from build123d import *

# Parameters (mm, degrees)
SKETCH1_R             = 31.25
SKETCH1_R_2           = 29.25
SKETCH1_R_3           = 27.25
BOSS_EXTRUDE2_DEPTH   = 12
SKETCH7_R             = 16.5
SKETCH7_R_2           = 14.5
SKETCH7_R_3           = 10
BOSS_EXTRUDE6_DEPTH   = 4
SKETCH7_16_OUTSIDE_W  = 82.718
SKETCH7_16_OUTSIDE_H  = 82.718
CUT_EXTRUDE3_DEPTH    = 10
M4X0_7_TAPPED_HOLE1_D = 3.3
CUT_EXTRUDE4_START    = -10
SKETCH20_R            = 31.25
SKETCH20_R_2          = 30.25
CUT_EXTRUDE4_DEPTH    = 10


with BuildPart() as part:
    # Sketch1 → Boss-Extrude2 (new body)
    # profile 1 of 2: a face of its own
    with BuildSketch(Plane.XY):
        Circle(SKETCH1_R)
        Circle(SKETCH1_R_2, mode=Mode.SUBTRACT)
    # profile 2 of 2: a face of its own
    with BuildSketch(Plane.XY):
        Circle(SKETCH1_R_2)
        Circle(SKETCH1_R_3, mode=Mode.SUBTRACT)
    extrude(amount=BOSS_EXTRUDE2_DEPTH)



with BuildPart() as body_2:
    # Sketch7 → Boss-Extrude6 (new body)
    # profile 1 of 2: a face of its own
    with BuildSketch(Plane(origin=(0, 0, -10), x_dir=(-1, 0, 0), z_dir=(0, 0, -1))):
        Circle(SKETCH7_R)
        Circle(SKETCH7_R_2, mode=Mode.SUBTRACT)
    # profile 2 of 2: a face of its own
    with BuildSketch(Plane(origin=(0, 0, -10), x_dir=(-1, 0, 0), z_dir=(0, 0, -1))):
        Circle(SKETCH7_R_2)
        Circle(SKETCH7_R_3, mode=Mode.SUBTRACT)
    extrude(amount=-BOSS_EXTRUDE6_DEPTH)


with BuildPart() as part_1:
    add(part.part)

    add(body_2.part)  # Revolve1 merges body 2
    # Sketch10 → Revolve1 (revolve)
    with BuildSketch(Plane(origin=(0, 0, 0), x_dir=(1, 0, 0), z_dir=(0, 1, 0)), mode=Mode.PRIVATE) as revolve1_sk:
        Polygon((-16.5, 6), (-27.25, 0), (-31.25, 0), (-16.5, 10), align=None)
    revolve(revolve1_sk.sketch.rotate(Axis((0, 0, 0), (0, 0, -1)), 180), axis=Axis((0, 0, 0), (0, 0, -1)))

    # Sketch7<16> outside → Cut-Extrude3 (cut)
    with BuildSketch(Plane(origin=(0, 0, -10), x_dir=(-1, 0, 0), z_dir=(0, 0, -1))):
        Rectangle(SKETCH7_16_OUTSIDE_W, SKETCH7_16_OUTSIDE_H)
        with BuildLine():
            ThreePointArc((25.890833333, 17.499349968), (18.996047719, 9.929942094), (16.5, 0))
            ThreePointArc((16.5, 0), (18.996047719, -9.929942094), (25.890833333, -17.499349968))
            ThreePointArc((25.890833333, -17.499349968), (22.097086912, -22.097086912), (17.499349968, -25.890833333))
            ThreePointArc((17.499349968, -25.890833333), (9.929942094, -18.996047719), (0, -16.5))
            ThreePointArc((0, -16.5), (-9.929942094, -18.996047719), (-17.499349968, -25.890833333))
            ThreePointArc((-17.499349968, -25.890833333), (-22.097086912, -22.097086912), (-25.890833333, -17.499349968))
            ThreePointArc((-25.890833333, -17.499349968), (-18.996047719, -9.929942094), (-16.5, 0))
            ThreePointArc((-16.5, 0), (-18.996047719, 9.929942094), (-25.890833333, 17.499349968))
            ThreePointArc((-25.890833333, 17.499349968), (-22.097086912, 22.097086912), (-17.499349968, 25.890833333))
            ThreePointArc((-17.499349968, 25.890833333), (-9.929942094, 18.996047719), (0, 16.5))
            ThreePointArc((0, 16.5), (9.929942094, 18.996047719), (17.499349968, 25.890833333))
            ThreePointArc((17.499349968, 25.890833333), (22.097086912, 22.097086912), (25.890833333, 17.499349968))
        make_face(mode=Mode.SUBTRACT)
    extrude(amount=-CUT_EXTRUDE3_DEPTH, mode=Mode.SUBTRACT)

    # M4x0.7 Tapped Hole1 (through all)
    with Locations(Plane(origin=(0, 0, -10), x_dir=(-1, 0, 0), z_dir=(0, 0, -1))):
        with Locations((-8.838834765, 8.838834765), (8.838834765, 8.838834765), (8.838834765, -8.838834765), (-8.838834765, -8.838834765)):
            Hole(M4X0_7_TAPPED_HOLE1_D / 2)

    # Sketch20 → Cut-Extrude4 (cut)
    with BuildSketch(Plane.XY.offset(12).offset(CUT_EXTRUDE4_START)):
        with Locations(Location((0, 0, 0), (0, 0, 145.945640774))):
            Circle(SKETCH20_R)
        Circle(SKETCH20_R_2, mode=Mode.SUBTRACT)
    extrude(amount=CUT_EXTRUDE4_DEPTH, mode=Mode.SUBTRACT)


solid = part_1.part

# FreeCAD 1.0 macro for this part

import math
import FreeCAD as App
import Part
import Sketcher

V = App.Vector
Q = App.Units.Quantity


def add_polygon(sketch, points):
    """Adds a closed chain of lines whose ends are joined by coincident constraints."""
    first, n = sketch.GeometryCount, len(points)
    for a, b in zip(points, points[1:] + points[:1]):
        sketch.addGeometry(Part.LineSegment(App.Vector(*a, 0), App.Vector(*b, 0)), False)
    for i in range(n):
        sketch.addConstraint(Sketcher.Constraint("Coincident", first + i, 2, first + (i + 1) % n, 1))

doc = App.newDocument("Part")
params = doc.addObject("Spreadsheet::Sheet", "Params")
for row, (alias, value) in enumerate([
    ("sketch1_diameter", "62.5 mm"),
    ("sketch1_diameter2", "54.5 mm"),
    ("pad1_length", "12 mm"),
    ("sketch2_diameter", "33 mm"),
    ("sketch2_diameter2", "20 mm"),
    ("pad2_length", "4 mm"),
    ("sketch3_width", "4 mm"),
    ("revolution_angle", "360 deg"),
    ("sketch4_radius", "21 mm"),
    ("sketch4_radius2", "31.25 mm"),
    ("pocket1_length", "10 mm"),
    ("sketch5_diameter", "3.3 mm"),
    ("hole_diameter", "3.3 mm"),
    ("sketch6_diameter", "62.5 mm"),
    ("sketch6_diameter2", "60.5 mm"),
    ("pocket2_length", "10 mm"),
], start=1):
    params.set(f"A{row}", alias)
    params.set(f"B{row}", "=" + value)
    params.setAlias(f"B{row}", alias)

body = doc.addObject("PartDesign::Body", "Body")

sketch1 = body.newObject("Sketcher::SketchObject", "Sketch")
sketch1.AttachmentSupport = (doc.getObject("XY_Plane"), [""])
sketch1.MapMode = "FlatFace"
sketch1.addGeometry([
    Part.Circle(V(0, 0, 0), V(0, 0, 1), 31),
    Part.Circle(V(0, 0, 0), V(0, 0, 1), 27),
], False)
sketch1.addConstraint([
    Sketcher.Constraint("Coincident", 0, 3, -1, 1),
    Sketcher.Constraint("Coincident", 1, 3, -1, 1),
    Sketcher.Constraint("Diameter", 0, Q("62.5 mm")),
    Sketcher.Constraint("Diameter", 1, Q("54.5 mm")),
])
sketch1.setExpression("Constraints[2]", "Params.sketch1_diameter")
sketch1.setExpression("Constraints[3]", "Params.sketch1_diameter2")
pad1 = body.newObject("PartDesign::Pad", "Pad")
pad1.Profile = sketch1
pad1.setExpression("Length", "Params.pad1_length")
body2 = doc.addObject("PartDesign::Body", "Body001")

sketch2 = body2.newObject("Sketcher::SketchObject", "Sketch001")
sketch2.AttachmentSupport = (doc.getObject("XY_Plane001"), [""])
sketch2.MapMode = "FlatFace"
sketch2.AttachmentOffset = App.Placement(V(0, 0, -10), App.Rotation())
sketch2.addGeometry([
    Part.Circle(V(0, 0, 0), V(0, 0, 1), 16),
    Part.Circle(V(0, 0, 0), V(0, 0, 1), 10),
], False)
sketch2.addConstraint([
    Sketcher.Constraint("Coincident", 0, 3, -1, 1),
    Sketcher.Constraint("Coincident", 1, 3, -1, 1),
    Sketcher.Constraint("Diameter", 0, Q("33 mm")),
    Sketcher.Constraint("Diameter", 1, Q("20 mm")),
])
sketch2.setExpression("Constraints[2]", "Params.sketch2_diameter")
sketch2.setExpression("Constraints[3]", "Params.sketch2_diameter2")
pad2 = body2.newObject("PartDesign::Pad", "Pad001")
pad2.Profile = sketch2
pad2.setExpression("Length", "Params.pad2_length")
body.AllowCompound = True
doc.recompute()

boolean = body.newObject("PartDesign::Boolean", "Boolean")
boolean.Type = "Fuse"
boolean.addObjects([body2])

sketch3 = body.newObject("Sketcher::SketchObject", "Sketch002")
sketch3.AttachmentSupport = (doc.getObject("XZ_Plane"), [""])
sketch3.MapMode = "FlatFace"
add_polygon(sketch3, [(-27.2, 0), (-16.5, -6), (-16.5, -10), (-31.2, 0)])
sketch3.addConstraint([
    Sketcher.Constraint("Vertical", 1),
    Sketcher.Constraint("Horizontal", 3),
    Sketcher.Constraint("PointOnObject", 2, 2, -1),
    Sketcher.Constraint("Equal", 3, 1),
    Sketcher.Constraint("DistanceX", 3, 1, 3, 2, Q("4 mm")),
    Sketcher.Constraint("DistanceY", 0, 2, -1, 1, Q("6 mm")),
    Sketcher.Constraint("DistanceX", 0, 2, -1, 1, Q("16.5 mm")),
    Sketcher.Constraint("DistanceX", 2, 2, -1, 1, Q("31.25 mm")),
])
sketch3.setExpression("Constraints[8]", "Params.sketch3_width")
revolution = body.newObject("PartDesign::Revolution", "Revolution")
revolution.Profile = sketch3
revolution.ReferenceAxis = (sketch3, ["V_Axis"])
revolution.setExpression("Angle", "Params.revolution_angle")

sketch4 = body.newObject("Sketcher::SketchObject", "Sketch003")
sketch4.AttachmentSupport = (doc.getObject("XY_Plane"), [""])
sketch4.MapMode = "FlatFace"
sketch4.AttachmentOffset = App.Placement(V(0, 0, -10), App.Rotation())
add_polygon(sketch4, [(41, 41), (41, -41), (-41, -41), (-41, 41)])
sketch4.addGeometry(Part.ArcOfCircle(Part.Circle(V(0, 0, 0), V(0, 0, 1), 31), math.radians(124), math.radians(146)), False)
sketch4.addGeometry(Part.ArcOfCircle(Part.Circle(V(-37, 0, 0), V(0, 0, 1), 21), math.radians(0), math.radians(56)), False)
sketch4.addGeometry(Part.ArcOfCircle(Part.Circle(V(-37, 0, 0), V(0, 0, 1), 21), math.radians(-56), math.radians(0)), False)
sketch4.addGeometry(Part.ArcOfCircle(Part.Circle(V(0, 0, 0), V(0, 0, 1), 31), math.radians(-146), math.radians(-124)), False)
sketch4.addGeometry(Part.ArcOfCircle(Part.Circle(V(0, -37, 0), V(0, 0, 1), 21), math.radians(90), math.radians(146)), False)
sketch4.addGeometry(Part.ArcOfCircle(Part.Circle(V(0, -37, 0), V(0, 0, 1), 21), math.radians(34), math.radians(90)), False)
sketch4.addGeometry(Part.ArcOfCircle(Part.Circle(V(0, 0, 0), V(0, 0, 1), 31), math.radians(-56), math.radians(-34)), False)
sketch4.addGeometry(Part.ArcOfCircle(Part.Circle(V(37, 0, 0), V(0, 0, 1), 21), math.radians(180), math.radians(236)), False)
sketch4.addGeometry(Part.ArcOfCircle(Part.Circle(V(37, 0, 0), V(0, 0, 1), 21), math.radians(124), math.radians(180)), False)
sketch4.addGeometry(Part.ArcOfCircle(Part.Circle(V(0, 0, 0), V(0, 0, 1), 31), math.radians(34), math.radians(56)), False)
sketch4.addGeometry(Part.ArcOfCircle(Part.Circle(V(0, 37, 0), V(0, 0, 1), 21), math.radians(-90), math.radians(-34)), False)
sketch4.addGeometry(Part.ArcOfCircle(Part.Circle(V(0, 37, 0), V(0, 0, 1), 21), math.radians(-146), math.radians(-90)), False)
sketch4.addConstraint([
    Sketcher.Constraint("Coincident", 4, 2, 5, 2),
    Sketcher.Constraint("Tangent", 5, 1, 6, 2),
    Sketcher.Constraint("Coincident", 6, 1, 7, 1),
    Sketcher.Constraint("Coincident", 7, 2, 8, 2),
    Sketcher.Constraint("Tangent", 8, 1, 9, 2),
    Sketcher.Constraint("Coincident", 9, 1, 10, 1),
    Sketcher.Constraint("Coincident", 10, 2, 11, 2),
    Sketcher.Constraint("Tangent", 11, 1, 12, 2),
    Sketcher.Constraint("Coincident", 12, 1, 13, 1),
    Sketcher.Constraint("Coincident", 13, 2, 14, 2),
    Sketcher.Constraint("Tangent", 14, 1, 15, 2),
    Sketcher.Constraint("Coincident", 15, 1, 4, 1),
    Sketcher.Constraint("Vertical", 0),
    Sketcher.Constraint("Horizontal", 1),
    Sketcher.Constraint("Vertical", 2),
    Sketcher.Constraint("Horizontal", 3),
    Sketcher.Constraint("Coincident", 4, 3, -1, 1),
    Sketcher.Constraint("Coincident", 7, 3, -1, 1),
    Sketcher.Constraint("Coincident", 10, 3, -1, 1),
    Sketcher.Constraint("Coincident", 13, 3, -1, 1),
    Sketcher.Constraint("Equal", 5, 6),
    Sketcher.Constraint("Equal", 4, 7),
    Sketcher.Constraint("Equal", 6, 8),
    Sketcher.Constraint("Equal", 8, 9),
    Sketcher.Constraint("Equal", 7, 10),
    Sketcher.Constraint("Equal", 9, 11),
    Sketcher.Constraint("Equal", 11, 12),
    Sketcher.Constraint("Equal", 10, 13),
    Sketcher.Constraint("Equal", 12, 14),
    Sketcher.Constraint("Equal", 14, 15),
    Sketcher.Constraint("Symmetric", 5, 3, 11, 3, -1, 1),
    Sketcher.Constraint("Symmetric", 8, 3, 14, 3, -1, 1),
    Sketcher.Constraint("Symmetric", 0, 2, 2, 2, -1, 1),
    Sketcher.Constraint("PointOnObject", 5, 3, -1),
    Sketcher.Constraint("PointOnObject", 8, 3, -2),
    Sketcher.Constraint("PointOnObject", 5, 1, -1),
    Sketcher.Constraint("PointOnObject", 8, 1, -2),
    Sketcher.Constraint("PointOnObject", 11, 1, -1),
    Sketcher.Constraint("PointOnObject", 14, 1, -2),
    Sketcher.Constraint("Equal", 3, 0),
    Sketcher.Constraint("Radius", 5, Q("21 mm")),
    Sketcher.Constraint("Radius", 4, Q("31.25 mm")),
    Sketcher.Constraint("DistanceX", 5, 3, -1, 1, Q("37.5 mm")),
    Sketcher.Constraint("DistanceY", 8, 3, -1, 1, Q("37.5 mm")),
    Sketcher.Constraint("DistanceX", 1, 2, 1, 1, Q("82.718 mm")),
])
sketch4.setExpression("Constraints[44]", "Params.sketch4_radius")
sketch4.setExpression("Constraints[45]", "Params.sketch4_radius2")
pocket1 = body.newObject("PartDesign::Pocket", "Pocket")
pocket1.Profile = sketch4
pocket1.setExpression("Length", "Params.pocket1_length")
pocket1.Reversed = True

sketch5 = body.newObject("Sketcher::SketchObject", "Sketch004")
sketch5.AttachmentSupport = (doc.getObject("XY_Plane"), [""])
sketch5.MapMode = "FlatFace"
sketch5.AttachmentOffset = App.Placement(V(0, 0, -10), App.Rotation())
sketch5.addGeometry([
    Part.Circle(V(8.8, 8.8, 0), V(0, 0, 1), 1.6),
    Part.Circle(V(-8.8, 8.8, 0), V(0, 0, 1), 1.6),
    Part.Circle(V(-8.8, -8.8, 0), V(0, 0, 1), 1.6),
    Part.Circle(V(8.8, -8.8, 0), V(0, 0, 1), 1.6),
], False)
sketch5.addConstraint([
    Sketcher.Constraint("Equal", 0, 1),
    Sketcher.Constraint("Equal", 1, 2),
    Sketcher.Constraint("Equal", 2, 3),
    Sketcher.Constraint("Symmetric", 0, 3, 2, 3, -1, 1),
    Sketcher.Constraint("Symmetric", 1, 3, 3, 3, -1, 1),
    Sketcher.Constraint("Symmetric", 0, 3, 1, 3, -2),
    Sketcher.Constraint("Diameter", 0, Q("3.3 mm")),
    Sketcher.Constraint("DistanceX", 1, 3, 0, 3, Q("17.67767 mm")),
    Sketcher.Constraint("DistanceY", 2, 3, 1, 3, Q("17.67767 mm")),
])
sketch5.setExpression("Constraints[6]", "Params.sketch5_diameter")
doc.recompute()
hole = body.newObject("PartDesign::Hole", "Hole")
hole.Profile = sketch5
hole.ThreadType = "None"
hole.setExpression("Diameter", "Params.hole_diameter")
hole.DepthType = "ThroughAll"
hole.Reversed = True

sketch6 = body.newObject("Sketcher::SketchObject", "Sketch005")
sketch6.AttachmentSupport = (doc.getObject("XY_Plane"), [""])
sketch6.MapMode = "FlatFace"
sketch6.AttachmentOffset = App.Placement(V(0, 0, 2), App.Rotation())
sketch6.addGeometry([
    Part.Circle(V(0, 0, 0), V(0, 0, 1), 31),
    Part.Circle(V(0, 0, 0), V(0, 0, 1), 30),
], False)
sketch6.addConstraint([
    Sketcher.Constraint("Coincident", 0, 3, -1, 1),
    Sketcher.Constraint("Coincident", 1, 3, -1, 1),
    Sketcher.Constraint("Diameter", 0, Q("62.5 mm")),
    Sketcher.Constraint("Diameter", 1, Q("60.5 mm")),
])
sketch6.setExpression("Constraints[2]", "Params.sketch6_diameter")
sketch6.setExpression("Constraints[3]", "Params.sketch6_diameter2")
pocket2 = body.newObject("PartDesign::Pocket", "Pocket001")
pocket2.Profile = sketch6
pocket2.setExpression("Length", "Params.pocket2_length")
pocket2.Reversed = True

doc.recompute()
